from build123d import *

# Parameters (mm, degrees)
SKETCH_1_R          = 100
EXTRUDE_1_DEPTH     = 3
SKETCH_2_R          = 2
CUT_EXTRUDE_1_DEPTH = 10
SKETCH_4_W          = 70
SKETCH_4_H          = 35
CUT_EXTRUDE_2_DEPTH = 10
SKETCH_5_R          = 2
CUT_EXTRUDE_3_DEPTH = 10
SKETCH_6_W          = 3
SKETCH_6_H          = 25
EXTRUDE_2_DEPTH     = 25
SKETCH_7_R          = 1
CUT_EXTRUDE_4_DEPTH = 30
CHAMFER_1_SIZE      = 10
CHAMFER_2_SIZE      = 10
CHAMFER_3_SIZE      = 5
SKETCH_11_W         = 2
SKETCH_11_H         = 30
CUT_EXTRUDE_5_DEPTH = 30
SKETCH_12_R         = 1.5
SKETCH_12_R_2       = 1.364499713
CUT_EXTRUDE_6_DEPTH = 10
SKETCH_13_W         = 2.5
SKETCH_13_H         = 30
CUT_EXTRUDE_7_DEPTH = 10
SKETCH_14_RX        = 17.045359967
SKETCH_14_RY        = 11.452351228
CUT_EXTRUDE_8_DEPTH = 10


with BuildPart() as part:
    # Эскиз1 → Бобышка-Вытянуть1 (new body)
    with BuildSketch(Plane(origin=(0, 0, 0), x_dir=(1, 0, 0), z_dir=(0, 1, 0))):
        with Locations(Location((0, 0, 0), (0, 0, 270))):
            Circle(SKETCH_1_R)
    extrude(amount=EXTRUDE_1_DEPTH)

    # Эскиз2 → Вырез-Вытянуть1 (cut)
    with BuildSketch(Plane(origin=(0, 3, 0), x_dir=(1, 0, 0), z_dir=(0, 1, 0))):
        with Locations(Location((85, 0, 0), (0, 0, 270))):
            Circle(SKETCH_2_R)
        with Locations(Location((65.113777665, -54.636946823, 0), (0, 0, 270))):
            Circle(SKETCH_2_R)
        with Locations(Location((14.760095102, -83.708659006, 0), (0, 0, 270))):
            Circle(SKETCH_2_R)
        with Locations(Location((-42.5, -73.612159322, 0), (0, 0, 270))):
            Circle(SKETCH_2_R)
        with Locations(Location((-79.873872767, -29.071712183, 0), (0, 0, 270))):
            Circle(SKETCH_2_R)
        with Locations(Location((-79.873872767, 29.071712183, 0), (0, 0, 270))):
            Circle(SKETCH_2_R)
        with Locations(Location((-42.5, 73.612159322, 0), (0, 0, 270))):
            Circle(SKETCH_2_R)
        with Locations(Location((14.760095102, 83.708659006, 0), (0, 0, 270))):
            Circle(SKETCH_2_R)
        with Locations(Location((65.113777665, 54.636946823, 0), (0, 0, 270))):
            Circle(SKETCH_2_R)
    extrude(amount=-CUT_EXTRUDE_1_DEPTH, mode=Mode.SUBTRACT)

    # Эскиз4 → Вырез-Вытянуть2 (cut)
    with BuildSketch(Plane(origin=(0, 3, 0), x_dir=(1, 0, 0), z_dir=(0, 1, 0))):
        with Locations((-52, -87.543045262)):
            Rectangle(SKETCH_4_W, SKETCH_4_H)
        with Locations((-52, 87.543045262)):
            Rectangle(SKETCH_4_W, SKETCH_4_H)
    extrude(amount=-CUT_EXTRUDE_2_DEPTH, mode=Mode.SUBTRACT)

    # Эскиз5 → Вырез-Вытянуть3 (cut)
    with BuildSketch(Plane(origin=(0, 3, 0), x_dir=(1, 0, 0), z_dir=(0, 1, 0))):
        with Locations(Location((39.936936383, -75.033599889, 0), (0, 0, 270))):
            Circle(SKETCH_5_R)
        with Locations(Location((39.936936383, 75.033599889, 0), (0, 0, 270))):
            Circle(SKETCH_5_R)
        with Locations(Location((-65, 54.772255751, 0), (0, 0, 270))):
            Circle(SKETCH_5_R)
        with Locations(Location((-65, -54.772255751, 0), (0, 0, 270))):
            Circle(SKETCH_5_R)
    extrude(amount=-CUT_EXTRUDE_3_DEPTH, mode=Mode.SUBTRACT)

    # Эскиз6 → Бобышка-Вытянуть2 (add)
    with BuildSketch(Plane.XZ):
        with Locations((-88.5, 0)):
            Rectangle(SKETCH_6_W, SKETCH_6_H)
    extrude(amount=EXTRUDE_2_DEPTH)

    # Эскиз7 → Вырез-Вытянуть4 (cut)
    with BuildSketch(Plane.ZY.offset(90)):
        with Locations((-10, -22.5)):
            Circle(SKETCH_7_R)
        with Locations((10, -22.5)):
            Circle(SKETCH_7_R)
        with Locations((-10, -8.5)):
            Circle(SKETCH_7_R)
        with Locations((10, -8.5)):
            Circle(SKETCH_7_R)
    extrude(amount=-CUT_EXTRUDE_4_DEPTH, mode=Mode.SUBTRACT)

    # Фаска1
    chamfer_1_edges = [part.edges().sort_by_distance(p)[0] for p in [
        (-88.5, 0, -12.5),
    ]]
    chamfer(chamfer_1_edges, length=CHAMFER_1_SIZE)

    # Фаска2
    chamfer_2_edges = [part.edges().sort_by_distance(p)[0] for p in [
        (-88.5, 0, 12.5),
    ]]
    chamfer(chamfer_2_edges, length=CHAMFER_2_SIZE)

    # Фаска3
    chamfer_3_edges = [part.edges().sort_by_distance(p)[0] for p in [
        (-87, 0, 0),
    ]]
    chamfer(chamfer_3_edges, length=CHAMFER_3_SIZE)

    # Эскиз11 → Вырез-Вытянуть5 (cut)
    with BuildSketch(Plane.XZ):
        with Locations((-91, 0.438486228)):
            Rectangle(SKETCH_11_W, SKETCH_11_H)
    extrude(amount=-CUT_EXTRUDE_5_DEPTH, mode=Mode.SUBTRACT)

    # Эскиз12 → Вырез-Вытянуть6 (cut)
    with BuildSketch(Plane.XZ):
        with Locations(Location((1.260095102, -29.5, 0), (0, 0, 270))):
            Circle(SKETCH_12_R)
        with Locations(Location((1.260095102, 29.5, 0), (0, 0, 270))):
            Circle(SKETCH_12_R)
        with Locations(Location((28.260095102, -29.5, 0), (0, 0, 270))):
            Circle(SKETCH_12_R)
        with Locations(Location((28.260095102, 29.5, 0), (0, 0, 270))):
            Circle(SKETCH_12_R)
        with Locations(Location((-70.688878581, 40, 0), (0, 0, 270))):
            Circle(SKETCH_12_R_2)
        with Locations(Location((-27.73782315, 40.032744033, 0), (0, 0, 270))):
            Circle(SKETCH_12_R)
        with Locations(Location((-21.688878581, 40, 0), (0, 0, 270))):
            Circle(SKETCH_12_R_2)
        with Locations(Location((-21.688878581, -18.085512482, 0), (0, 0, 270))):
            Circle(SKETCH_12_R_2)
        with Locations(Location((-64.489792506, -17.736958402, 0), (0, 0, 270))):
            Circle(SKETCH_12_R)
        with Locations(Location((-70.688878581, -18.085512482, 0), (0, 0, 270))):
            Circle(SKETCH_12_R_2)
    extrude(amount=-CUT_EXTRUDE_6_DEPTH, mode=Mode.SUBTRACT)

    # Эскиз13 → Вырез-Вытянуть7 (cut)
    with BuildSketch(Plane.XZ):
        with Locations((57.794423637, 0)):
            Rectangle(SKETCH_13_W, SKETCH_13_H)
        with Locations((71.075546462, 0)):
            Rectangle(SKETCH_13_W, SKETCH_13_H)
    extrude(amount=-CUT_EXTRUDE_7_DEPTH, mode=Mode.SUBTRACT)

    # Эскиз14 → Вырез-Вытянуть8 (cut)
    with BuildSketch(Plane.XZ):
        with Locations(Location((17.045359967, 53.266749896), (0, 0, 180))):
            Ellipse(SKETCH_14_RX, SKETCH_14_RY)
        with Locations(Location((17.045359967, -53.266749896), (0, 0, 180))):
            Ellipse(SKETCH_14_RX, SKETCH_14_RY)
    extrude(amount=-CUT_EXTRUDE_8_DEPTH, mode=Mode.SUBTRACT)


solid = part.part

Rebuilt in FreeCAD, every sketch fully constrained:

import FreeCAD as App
import Part
import Sketcher

V = App.Vector
Q = App.Units.Quantity


def edges_at(feature, points):
    """Names of the edges that pass closest to the given points."""
    edges = feature.Shape.Edges
    near = lambda p: min(range(len(edges)), key=lambda i: edges[i].distToShape(Part.Vertex(*p))[0])
    return sorted({f"Edge{near(p) + 1}" for p in points})


def add_polygon(sketch, points):
    """Adds a closed chain of lines whose ends are joined by coincident constraints."""
    first, n = sketch.GeometryCount, len(points)
    for a, b in zip(points, points[1:] + points[:1]):
        sketch.addGeometry(Part.LineSegment(App.Vector(*a, 0), App.Vector(*b, 0)), False)
    for i in range(n):
        sketch.addConstraint(Sketcher.Constraint("Coincident", first + i, 2, first + (i + 1) % n, 1))

doc = App.newDocument("Part")
params = doc.addObject("Spreadsheet::Sheet", "Params")
for row, (alias, value) in enumerate([
    ("sketch1_diameter", "200 mm"),
    ("pad1_length", "3 mm"),
    ("sketch2_diameter", "4 mm"),
    ("pocket1_length", "10 mm"),
    ("sketch3_width", "70 mm"),
    ("sketch3_height", "35 mm"),
    ("pocket2_length", "10 mm"),
    ("sketch4_diameter", "4 mm"),
    ("pocket3_length", "10 mm"),
    ("sketch5_width", "3 mm"),
    ("sketch5_height", "25 mm"),
    ("pad2_length", "25 mm"),
    ("sketch6_diameter", "2 mm"),
    ("pocket4_length", "30 mm"),
    ("chamfer_size", "10 mm"),
    ("chamfer2_size", "10 mm"),
    ("chamfer3_size", "5 mm"),
    ("sketch7_width", "2 mm"),
    ("sketch7_height", "30 mm"),
    ("pocket5_length", "30 mm"),
    ("sketch8_diameter", "3 mm"),
    ("pocket6_length", "10 mm"),
    ("sketch9_height", "30 mm"),
    ("sketch9_width", "2.5 mm"),
    ("pocket7_length", "10 mm"),
    ("pocket8_length", "10 mm"),
], start=1):
    params.set(f"A{row}", alias)
    params.set(f"B{row}", "=" + value)
    params.setAlias(f"B{row}", alias)

body = doc.addObject("PartDesign::Body", "Body")

sketch1 = doc.addObject("Sketcher::SketchObject", "Sketch")
body.addObject(sketch1)
sketch1.AttachmentSupport = (doc.XZ_Plane, [""])
sketch1.MapMode = "FlatFace"
sketch1.addGeometry(Part.Circle(V(0, 0, 0), V(0, 0, 1), 100), False)
sketch1.addConstraint([
    Sketcher.Constraint("Coincident", 0, 3, -1, 1),
    Sketcher.Constraint("Diameter", 0, Q("200 mm")),
])
sketch1.setExpression("Constraints[1]", "Params.sketch1_diameter")
pad1 = doc.addObject("PartDesign::Pad", "Pad")
body.addObject(pad1)
pad1.Profile = sketch1
pad1.setExpression("Length", "Params.pad1_length")
pad1.Reversed = True

sketch2 = doc.addObject("Sketcher::SketchObject", "Sketch001")
body.addObject(sketch2)
sketch2.AttachmentSupport = (doc.XZ_Plane, [""])
sketch2.MapMode = "FlatFace"
sketch2.AttachmentOffset = App.Placement(V(0, 0, -3), App.Rotation())
sketch2.addGeometry([
    Part.Circle(V(85, 0, 0), V(0, 0, 1), 2),
    Part.Circle(V(65.113778, 54.636947, 0), V(0, 0, 1), 2),
    Part.Circle(V(14.760095, 83.708659, 0), V(0, 0, 1), 2),
    Part.Circle(V(-42.5, 73.612159, 0), V(0, 0, 1), 2),
    Part.Circle(V(-79.873873, 29.071712, 0), V(0, 0, 1), 2),
    Part.Circle(V(-79.873873, -29.071712, 0), V(0, 0, 1), 2),
    Part.Circle(V(-42.5, -73.612159, 0), V(0, 0, 1), 2),
    Part.Circle(V(14.760095, -83.708659, 0), V(0, 0, 1), 2),
    Part.Circle(V(65.113778, -54.636947, 0), V(0, 0, 1), 2),
], False)
sketch2.addConstraint([
    Sketcher.Constraint("Equal", 0, 1),
    Sketcher.Constraint("Equal", 1, 2),
    Sketcher.Constraint("Equal", 2, 3),
    Sketcher.Constraint("Equal", 3, 4),
    Sketcher.Constraint("Equal", 4, 5),
    Sketcher.Constraint("Equal", 5, 6),
    Sketcher.Constraint("Equal", 6, 7),
    Sketcher.Constraint("Equal", 7, 8),
    Sketcher.Constraint("Symmetric", 4, 3, 5, 3, -1),
    Sketcher.Constraint("Symmetric", 3, 3, 6, 3, -1),
    Sketcher.Constraint("Symmetric", 2, 3, 7, 3, -1),
    Sketcher.Constraint("Symmetric", 1, 3, 8, 3, -1),
    Sketcher.Constraint("PointOnObject", 0, 3, -1),
    Sketcher.Constraint("Diameter", 0, Q("4 mm")),
    Sketcher.Constraint("DistanceX", -1, 1, 0, 3, Q("85 mm")),
    Sketcher.Constraint("DistanceX", 3, 3, -1, 1, Q("42.5 mm")),
    Sketcher.Constraint("DistanceY", 3, 3, 2, 3, Q("10.0965 mm")),
    Sketcher.Constraint("DistanceY", -1, 1, 2, 3, Q("83.708659 mm")),
    Sketcher.Constraint("DistanceX", 4, 3, 1, 3, Q("144.98765 mm")),
    Sketcher.Constraint("DistanceY", 5, 3, 3, 3, Q("102.683872 mm")),
    Sketcher.Constraint("DistanceY", 5, 3, 1, 3, Q("83.708659 mm")),
    Sketcher.Constraint("DistanceX", -1, 1, 1, 3, Q("65.113778 mm")),
    Sketcher.Constraint("DistanceX", -1, 1, 2, 3, Q("14.760095 mm")),
])
sketch2.setExpression("Constraints[13]", "Params.sketch2_diameter")
pocket1 = doc.addObject("PartDesign::Pocket", "Pocket")
body.addObject(pocket1)
pocket1.Profile = sketch2
pocket1.setExpression("Length", "Params.pocket1_length")
pocket1.Reversed = True

sketch3 = doc.addObject("Sketcher::SketchObject", "Sketch002")
body.addObject(sketch3)
sketch3.AttachmentSupport = (doc.XZ_Plane, [""])
sketch3.MapMode = "FlatFace"
sketch3.AttachmentOffset = App.Placement(V(0, 0, -3), App.Rotation())
add_polygon(sketch3, [(-87, 70.043045), (-87, 105.043045), (-17, 105.043045), (-17, 70.043045)])
add_polygon(sketch3, [(-87, -105.043045), (-87, -70.043045), (-17, -70.043045), (-17, -105.043045)])
sketch3.addConstraint([
    Sketcher.Constraint("Vertical", 0),
    Sketcher.Constraint("Horizontal", 1),
    Sketcher.Constraint("Vertical", 2),
    Sketcher.Constraint("Horizontal", 3),
    Sketcher.Constraint("Vertical", 4),
    Sketcher.Constraint("Horizontal", 5),
    Sketcher.Constraint("Vertical", 6),
    Sketcher.Constraint("Horizontal", 7),
    Sketcher.Constraint("Symmetric", 3, 2, 4, 2, -1),
    Sketcher.Constraint("Symmetric", 1, 2, 6, 2, -1),
    Sketcher.Constraint("DistanceX", 1, 1, 1, 2, Q("70 mm")),
    Sketcher.Constraint("DistanceY", 0, 1, 0, 2, Q("35 mm")),
    Sketcher.Constraint("DistanceX", 0, 2, -1, 1, Q("87 mm")),
    Sketcher.Constraint("DistanceY", 4, 2, 3, 2, Q("140.086091 mm")),
])
sketch3.setExpression("Constraints[18]", "Params.sketch3_width")
sketch3.setExpression("Constraints[19]", "Params.sketch3_height")
pocket2 = doc.addObject("PartDesign::Pocket", "Pocket001")
body.addObject(pocket2)
pocket2.Profile = sketch3
pocket2.setExpression("Length", "Params.pocket2_length")
pocket2.Reversed = True

sketch4 = doc.addObject("Sketcher::SketchObject", "Sketch003")
body.addObject(sketch4)
sketch4.AttachmentSupport = (doc.XZ_Plane, [""])
sketch4.MapMode = "FlatFace"
sketch4.AttachmentOffset = App.Placement(V(0, 0, -3), App.Rotation())
sketch4.addGeometry([
    Part.Circle(V(39.936936, 75.0336, 0), V(0, 0, 1), 2),
    Part.Circle(V(39.936936, -75.0336, 0), V(0, 0, 1), 2),
    Part.Circle(V(-65, -54.772256, 0), V(0, 0, 1), 2),
    Part.Circle(V(-65, 54.772256, 0), V(0, 0, 1), 2),
], False)
sketch4.addConstraint([
    Sketcher.Constraint("Equal", 0, 1),
    Sketcher.Constraint("Equal", 1, 2),
    Sketcher.Constraint("Equal", 2, 3),
    Sketcher.Constraint("Symmetric", 0, 3, 1, 3, -1),
    Sketcher.Constraint("Symmetric", 2, 3, 3, 3, -1),
    Sketcher.Constraint("Diameter", 0, Q("4 mm")),
    Sketcher.Constraint("DistanceX", 2, 3, -1, 1, Q("65 mm")),
    Sketcher.Constraint("DistanceY", -1, 1, 0, 3, Q("75.0336 mm")),
    Sketcher.Constraint("DistanceY", 2, 3, 3, 3, Q("109.544512 mm")),
    Sketcher.Constraint("DistanceX", -1, 1, 0, 3, Q("39.936936 mm")),
])
sketch4.setExpression("Constraints[5]", "Params.sketch4_diameter")
pocket3 = doc.addObject("PartDesign::Pocket", "Pocket002")
body.addObject(pocket3)
pocket3.Profile = sketch4
pocket3.setExpression("Length", "Params.pocket3_length")
pocket3.Reversed = True

sketch5 = doc.addObject("Sketcher::SketchObject", "Sketch004")
body.addObject(sketch5)
sketch5.AttachmentSupport = (doc.XZ_Plane, [""])
sketch5.MapMode = "FlatFace"
add_polygon(sketch5, [(-90, 12.5), (-90, -12.5), (-87, -12.5), (-87, 12.5)])
sketch5.addConstraint([
    Sketcher.Constraint("Vertical", 0),
    Sketcher.Constraint("Horizontal", 1),
    Sketcher.Constraint("Vertical", 2),
    Sketcher.Constraint("Horizontal", 3),
    Sketcher.Constraint("DistanceX", 1, 1, 1, 2, Q("3 mm")),
    Sketcher.Constraint("DistanceY", 0, 2, 0, 1, Q("25 mm")),
    Sketcher.Constraint("DistanceX", 0, 2, -1, 1, Q("90 mm")),
    Sketcher.Constraint("DistanceY", 0, 2, -1, 1, Q("12.5 mm")),
])
sketch5.setExpression("Constraints[8]", "Params.sketch5_width")
sketch5.setExpression("Constraints[9]", "Params.sketch5_height")
pad2 = doc.addObject("PartDesign::Pad", "Pad001")
body.addObject(pad2)
pad2.Profile = sketch5
pad2.setExpression("Length", "Params.pad2_length")

sketch6 = doc.addObject("Sketcher::SketchObject", "Sketch005")
body.addObject(sketch6)
sketch6.AttachmentSupport = (doc.YZ_Plane, [""])
sketch6.MapMode = "FlatFace"
sketch6.AttachmentOffset = App.Placement(V(0, 0, -90), App.Rotation())
sketch6.addGeometry([
    Part.Circle(V(-22.5, -10, 0), V(0, 0, 1), 1),
    Part.Circle(V(-22.5, 10, 0), V(0, 0, 1), 1),
    Part.Circle(V(-8.5, -10, 0), V(0, 0, 1), 1),
    Part.Circle(V(-8.5, 10, 0), V(0, 0, 1), 1),
], False)
sketch6.addConstraint([
    Sketcher.Constraint("Equal", 0, 1),
    Sketcher.Constraint("Equal", 1, 2),
    Sketcher.Constraint("Equal", 2, 3),
    Sketcher.Constraint("Symmetric", 0, 3, 1, 3, -1),
    Sketcher.Constraint("Symmetric", 2, 3, 3, 3, -1),
    Sketcher.Constraint("Horizontal", 0, 3, 2, 3),
    Sketcher.Constraint("Diameter", 0, Q("2 mm")),
    Sketcher.Constraint("DistanceY", 0, 3, -1, 1, Q("10 mm")),
    Sketcher.Constraint("DistanceX", 0, 3, 2, 3, Q("14 mm")),
    Sketcher.Constraint("DistanceX", 0, 3, -1, 1, Q("22.5 mm")),
])
sketch6.setExpression("Constraints[6]", "Params.sketch6_diameter")
pocket4 = doc.addObject("PartDesign::Pocket", "Pocket003")
body.addObject(pocket4)
pocket4.Profile = sketch6
pocket4.setExpression("Length", "Params.pocket4_length")
pocket4.Reversed = True
doc.recompute()

chamfer = doc.addObject("PartDesign::Chamfer", "Chamfer")
body.addObject(chamfer)
chamfer.Base = (pocket4, edges_at(pocket4, [(-88.5, 0, -12.5)]))
chamfer.setExpression("Size", "Params.chamfer_size")
doc.recompute()

chamfer2 = doc.addObject("PartDesign::Chamfer", "Chamfer001")
body.addObject(chamfer2)
chamfer2.Base = (chamfer, edges_at(chamfer, [(-88.5, 0, 12.5)]))
chamfer2.setExpression("Size", "Params.chamfer2_size")
doc.recompute()

chamfer3 = doc.addObject("PartDesign::Chamfer", "Chamfer002")
body.addObject(chamfer3)
chamfer3.Base = (chamfer2, edges_at(chamfer2, [(-87, 0, 0)]))
chamfer3.setExpression("Size", "Params.chamfer3_size")

sketch7 = doc.addObject("Sketcher::SketchObject", "Sketch006")
body.addObject(sketch7)
sketch7.AttachmentSupport = (doc.XZ_Plane, [""])
sketch7.MapMode = "FlatFace"
add_polygon(sketch7, [(-92, 15.438486), (-92, -14.561514), (-90, -14.561514), (-90, 15.438486)])
sketch7.addConstraint([
    Sketcher.Constraint("Vertical", 0),
    Sketcher.Constraint("Horizontal", 1),
    Sketcher.Constraint("Vertical", 2),
    Sketcher.Constraint("Horizontal", 3),
    Sketcher.Constraint("DistanceX", 1, 1, 1, 2, Q("2 mm")),
    Sketcher.Constraint("DistanceY", 0, 2, 0, 1, Q("30 mm")),
    Sketcher.Constraint("DistanceX", 0, 2, -1, 1, Q("92 mm")),
    Sketcher.Constraint("DistanceY", 0, 2, -1, 1, Q("14.561514 mm")),
])
sketch7.setExpression("Constraints[8]", "Params.sketch7_width")
sketch7.setExpression("Constraints[9]", "Params.sketch7_height")
pocket5 = doc.addObject("PartDesign::Pocket", "Pocket004")
body.addObject(pocket5)
pocket5.Profile = sketch7
pocket5.setExpression("Length", "Params.pocket5_length")

sketch8 = doc.addObject("Sketcher::SketchObject", "Sketch007")
body.addObject(sketch8)
sketch8.AttachmentSupport = (doc.XZ_Plane, [""])
sketch8.MapMode = "FlatFace"
sketch8.addGeometry([
    Part.Circle(V(1.260095, -29.5, 0), V(0, 0, 1), 1.5),
    Part.Circle(V(1.260095, 29.5, 0), V(0, 0, 1), 1.5),
    Part.Circle(V(28.260095, -29.5, 0), V(0, 0, 1), 1.5),
    Part.Circle(V(28.260095, 29.5, 0), V(0, 0, 1), 1.5),
    Part.Circle(V(-70.688879, 40, 0), V(0, 0, 1), 1.3645),
    Part.Circle(V(-27.737823, 40.032744, 0), V(0, 0, 1), 1.5),
    Part.Circle(V(-21.688879, 40, 0), V(0, 0, 1), 1.3645),
    Part.Circle(V(-21.688879, -18.085512, 0), V(0, 0, 1), 1.3645),
    Part.Circle(V(-64.489793, -17.736958, 0), V(0, 0, 1), 1.5),
    Part.Circle(V(-70.688879, -18.085512, 0), V(0, 0, 1), 1.3645),
], False)
sketch8.addConstraint([
    Sketcher.Constraint("Equal", 0, 1),
    Sketcher.Constraint("Equal", 1, 2),
    Sketcher.Constraint("Equal", 2, 3),
    Sketcher.Constraint("Equal", 3, 5),
    Sketcher.Constraint("Equal", 4, 6),
    Sketcher.Constraint("Equal", 6, 7),
    Sketcher.Constraint("Equal", 5, 8),
    Sketcher.Constraint("Equal", 7, 9),
    Sketcher.Constraint("Symmetric", 0, 3, 1, 3, -1),
    Sketcher.Constraint("Symmetric", 2, 3, 3, 3, -1),
    Sketcher.Constraint("Horizontal", 0, 3, 2, 3),
    Sketcher.Constraint("Horizontal", 4, 3, 6, 3),
    Sketcher.Constraint("Horizontal", 7, 3, 9, 3),
    Sketcher.Constraint("Vertical", 6, 3, 7, 3),
    Sketcher.Constraint("Vertical", 4, 3, 9, 3),
    Sketcher.Constraint("Diameter", 0, Q("3 mm")),
    Sketcher.Constraint("Diameter", 4, Q("2.728999 mm")),
    Sketcher.Constraint("DistanceY", -1, 1, 4, 3, Q("40 mm")),
    Sketcher.Constraint("DistanceY", 0, 3, 1, 3, Q("59 mm")),
    Sketcher.Constraint("DistanceX", 0, 3, 2, 3, Q("27 mm")),
    Sketcher.Constraint("DistanceX", 4, 3, 6, 3, Q("49 mm")),
    Sketcher.Constraint("DistanceX", 4, 3, -1, 1, Q("70.688879 mm")),
    Sketcher.Constraint("DistanceY", 8, 3, -1, 1, Q("17.736958 mm")),
    Sketcher.Constraint("DistanceX", 5, 3, 1, 3, Q("28.997918 mm")),
    Sketcher.Constraint("DistanceX", 8, 3, 5, 3, Q("36.751969 mm")),
    Sketcher.Constraint("DistanceX", -1, 1, 0, 3, Q("1.260095 mm")),
    Sketcher.Constraint("DistanceY", -1, 1, 5, 3, Q("40.032744 mm")),
    Sketcher.Constraint("DistanceY", 7, 3, -1, 1, Q("18.085512 mm")),
])
sketch8.setExpression("Constraints[15]", "Params.sketch8_diameter")
pocket6 = doc.addObject("PartDesign::Pocket", "Pocket005")
body.addObject(pocket6)
pocket6.Profile = sketch8
pocket6.setExpression("Length", "Params.pocket6_length")

sketch9 = doc.addObject("Sketcher::SketchObject", "Sketch008")
body.addObject(sketch9)
sketch9.AttachmentSupport = (doc.XZ_Plane, [""])
sketch9.MapMode = "FlatFace"
add_polygon(sketch9, [(56.544424, 15), (56.544424, -15), (59.044424, -15), (59.044424, 15)])
add_polygon(sketch9, [(69.825546, 15), (69.825546, -15), (72.325546, -15), (72.325546, 15)])
sketch9.addConstraint([
    Sketcher.Constraint("Vertical", 0),
    Sketcher.Constraint("Horizontal", 1),
    Sketcher.Constraint("Vertical", 2),
    Sketcher.Constraint("Horizontal", 3),
    Sketcher.Constraint("Vertical", 4),
    Sketcher.Constraint("Horizontal", 5),
    Sketcher.Constraint("Vertical", 6),
    Sketcher.Constraint("Horizontal", 7),
    Sketcher.Constraint("Horizontal", 1, 2, 4, 2),
    Sketcher.Constraint("Horizontal", 3, 2, 6, 2),
    Sketcher.Constraint("Equal", 3, 5),
    Sketcher.Constraint("DistanceY", 0, 2, 0, 1, Q("30 mm")),
    Sketcher.Constraint("DistanceX", 1, 1, 1, 2, Q("2.5 mm")),
    Sketcher.Constraint("DistanceY", 0, 2, -1, 1, Q("15 mm")),
    Sketcher.Constraint("DistanceX", -1, 1, 0, 2, Q("56.544424 mm")),
    Sketcher.Constraint("DistanceX", -1, 1, 4, 2, Q("69.825546 mm")),
])
sketch9.setExpression("Constraints[19]", "Params.sketch9_height")
sketch9.setExpression("Constraints[20]", "Params.sketch9_width")
pocket7 = doc.addObject("PartDesign::Pocket", "Pocket006")
body.addObject(pocket7)
pocket7.Profile = sketch9
pocket7.setExpression("Length", "Params.pocket7_length")

sketch10 = doc.addObject("Sketcher::SketchObject", "Sketch009")
body.addObject(sketch10)
sketch10.AttachmentSupport = (doc.XZ_Plane, [""])
sketch10.MapMode = "FlatFace"
sketch10.addGeometry([
    Part.Ellipse(V(0, 53.26675, 0), V(17.04536, 41.814399, 0), V(17.04536, 53.26675, 0)),
    Part.Ellipse(V(0, -53.26675, 0), V(17.04536, -64.719101, 0), V(17.04536, -53.26675, 0)),
], False)
sketch10.addConstraint([
    Sketcher.Constraint("Block", 0),
    Sketcher.Constraint("Block", 1),
])
pocket8 = doc.addObject("PartDesign::Pocket", "Pocket007")
body.addObject(pocket8)
pocket8.Profile = sketch10
pocket8.setExpression("Length", "Params.pocket8_length")

doc.recompute()
